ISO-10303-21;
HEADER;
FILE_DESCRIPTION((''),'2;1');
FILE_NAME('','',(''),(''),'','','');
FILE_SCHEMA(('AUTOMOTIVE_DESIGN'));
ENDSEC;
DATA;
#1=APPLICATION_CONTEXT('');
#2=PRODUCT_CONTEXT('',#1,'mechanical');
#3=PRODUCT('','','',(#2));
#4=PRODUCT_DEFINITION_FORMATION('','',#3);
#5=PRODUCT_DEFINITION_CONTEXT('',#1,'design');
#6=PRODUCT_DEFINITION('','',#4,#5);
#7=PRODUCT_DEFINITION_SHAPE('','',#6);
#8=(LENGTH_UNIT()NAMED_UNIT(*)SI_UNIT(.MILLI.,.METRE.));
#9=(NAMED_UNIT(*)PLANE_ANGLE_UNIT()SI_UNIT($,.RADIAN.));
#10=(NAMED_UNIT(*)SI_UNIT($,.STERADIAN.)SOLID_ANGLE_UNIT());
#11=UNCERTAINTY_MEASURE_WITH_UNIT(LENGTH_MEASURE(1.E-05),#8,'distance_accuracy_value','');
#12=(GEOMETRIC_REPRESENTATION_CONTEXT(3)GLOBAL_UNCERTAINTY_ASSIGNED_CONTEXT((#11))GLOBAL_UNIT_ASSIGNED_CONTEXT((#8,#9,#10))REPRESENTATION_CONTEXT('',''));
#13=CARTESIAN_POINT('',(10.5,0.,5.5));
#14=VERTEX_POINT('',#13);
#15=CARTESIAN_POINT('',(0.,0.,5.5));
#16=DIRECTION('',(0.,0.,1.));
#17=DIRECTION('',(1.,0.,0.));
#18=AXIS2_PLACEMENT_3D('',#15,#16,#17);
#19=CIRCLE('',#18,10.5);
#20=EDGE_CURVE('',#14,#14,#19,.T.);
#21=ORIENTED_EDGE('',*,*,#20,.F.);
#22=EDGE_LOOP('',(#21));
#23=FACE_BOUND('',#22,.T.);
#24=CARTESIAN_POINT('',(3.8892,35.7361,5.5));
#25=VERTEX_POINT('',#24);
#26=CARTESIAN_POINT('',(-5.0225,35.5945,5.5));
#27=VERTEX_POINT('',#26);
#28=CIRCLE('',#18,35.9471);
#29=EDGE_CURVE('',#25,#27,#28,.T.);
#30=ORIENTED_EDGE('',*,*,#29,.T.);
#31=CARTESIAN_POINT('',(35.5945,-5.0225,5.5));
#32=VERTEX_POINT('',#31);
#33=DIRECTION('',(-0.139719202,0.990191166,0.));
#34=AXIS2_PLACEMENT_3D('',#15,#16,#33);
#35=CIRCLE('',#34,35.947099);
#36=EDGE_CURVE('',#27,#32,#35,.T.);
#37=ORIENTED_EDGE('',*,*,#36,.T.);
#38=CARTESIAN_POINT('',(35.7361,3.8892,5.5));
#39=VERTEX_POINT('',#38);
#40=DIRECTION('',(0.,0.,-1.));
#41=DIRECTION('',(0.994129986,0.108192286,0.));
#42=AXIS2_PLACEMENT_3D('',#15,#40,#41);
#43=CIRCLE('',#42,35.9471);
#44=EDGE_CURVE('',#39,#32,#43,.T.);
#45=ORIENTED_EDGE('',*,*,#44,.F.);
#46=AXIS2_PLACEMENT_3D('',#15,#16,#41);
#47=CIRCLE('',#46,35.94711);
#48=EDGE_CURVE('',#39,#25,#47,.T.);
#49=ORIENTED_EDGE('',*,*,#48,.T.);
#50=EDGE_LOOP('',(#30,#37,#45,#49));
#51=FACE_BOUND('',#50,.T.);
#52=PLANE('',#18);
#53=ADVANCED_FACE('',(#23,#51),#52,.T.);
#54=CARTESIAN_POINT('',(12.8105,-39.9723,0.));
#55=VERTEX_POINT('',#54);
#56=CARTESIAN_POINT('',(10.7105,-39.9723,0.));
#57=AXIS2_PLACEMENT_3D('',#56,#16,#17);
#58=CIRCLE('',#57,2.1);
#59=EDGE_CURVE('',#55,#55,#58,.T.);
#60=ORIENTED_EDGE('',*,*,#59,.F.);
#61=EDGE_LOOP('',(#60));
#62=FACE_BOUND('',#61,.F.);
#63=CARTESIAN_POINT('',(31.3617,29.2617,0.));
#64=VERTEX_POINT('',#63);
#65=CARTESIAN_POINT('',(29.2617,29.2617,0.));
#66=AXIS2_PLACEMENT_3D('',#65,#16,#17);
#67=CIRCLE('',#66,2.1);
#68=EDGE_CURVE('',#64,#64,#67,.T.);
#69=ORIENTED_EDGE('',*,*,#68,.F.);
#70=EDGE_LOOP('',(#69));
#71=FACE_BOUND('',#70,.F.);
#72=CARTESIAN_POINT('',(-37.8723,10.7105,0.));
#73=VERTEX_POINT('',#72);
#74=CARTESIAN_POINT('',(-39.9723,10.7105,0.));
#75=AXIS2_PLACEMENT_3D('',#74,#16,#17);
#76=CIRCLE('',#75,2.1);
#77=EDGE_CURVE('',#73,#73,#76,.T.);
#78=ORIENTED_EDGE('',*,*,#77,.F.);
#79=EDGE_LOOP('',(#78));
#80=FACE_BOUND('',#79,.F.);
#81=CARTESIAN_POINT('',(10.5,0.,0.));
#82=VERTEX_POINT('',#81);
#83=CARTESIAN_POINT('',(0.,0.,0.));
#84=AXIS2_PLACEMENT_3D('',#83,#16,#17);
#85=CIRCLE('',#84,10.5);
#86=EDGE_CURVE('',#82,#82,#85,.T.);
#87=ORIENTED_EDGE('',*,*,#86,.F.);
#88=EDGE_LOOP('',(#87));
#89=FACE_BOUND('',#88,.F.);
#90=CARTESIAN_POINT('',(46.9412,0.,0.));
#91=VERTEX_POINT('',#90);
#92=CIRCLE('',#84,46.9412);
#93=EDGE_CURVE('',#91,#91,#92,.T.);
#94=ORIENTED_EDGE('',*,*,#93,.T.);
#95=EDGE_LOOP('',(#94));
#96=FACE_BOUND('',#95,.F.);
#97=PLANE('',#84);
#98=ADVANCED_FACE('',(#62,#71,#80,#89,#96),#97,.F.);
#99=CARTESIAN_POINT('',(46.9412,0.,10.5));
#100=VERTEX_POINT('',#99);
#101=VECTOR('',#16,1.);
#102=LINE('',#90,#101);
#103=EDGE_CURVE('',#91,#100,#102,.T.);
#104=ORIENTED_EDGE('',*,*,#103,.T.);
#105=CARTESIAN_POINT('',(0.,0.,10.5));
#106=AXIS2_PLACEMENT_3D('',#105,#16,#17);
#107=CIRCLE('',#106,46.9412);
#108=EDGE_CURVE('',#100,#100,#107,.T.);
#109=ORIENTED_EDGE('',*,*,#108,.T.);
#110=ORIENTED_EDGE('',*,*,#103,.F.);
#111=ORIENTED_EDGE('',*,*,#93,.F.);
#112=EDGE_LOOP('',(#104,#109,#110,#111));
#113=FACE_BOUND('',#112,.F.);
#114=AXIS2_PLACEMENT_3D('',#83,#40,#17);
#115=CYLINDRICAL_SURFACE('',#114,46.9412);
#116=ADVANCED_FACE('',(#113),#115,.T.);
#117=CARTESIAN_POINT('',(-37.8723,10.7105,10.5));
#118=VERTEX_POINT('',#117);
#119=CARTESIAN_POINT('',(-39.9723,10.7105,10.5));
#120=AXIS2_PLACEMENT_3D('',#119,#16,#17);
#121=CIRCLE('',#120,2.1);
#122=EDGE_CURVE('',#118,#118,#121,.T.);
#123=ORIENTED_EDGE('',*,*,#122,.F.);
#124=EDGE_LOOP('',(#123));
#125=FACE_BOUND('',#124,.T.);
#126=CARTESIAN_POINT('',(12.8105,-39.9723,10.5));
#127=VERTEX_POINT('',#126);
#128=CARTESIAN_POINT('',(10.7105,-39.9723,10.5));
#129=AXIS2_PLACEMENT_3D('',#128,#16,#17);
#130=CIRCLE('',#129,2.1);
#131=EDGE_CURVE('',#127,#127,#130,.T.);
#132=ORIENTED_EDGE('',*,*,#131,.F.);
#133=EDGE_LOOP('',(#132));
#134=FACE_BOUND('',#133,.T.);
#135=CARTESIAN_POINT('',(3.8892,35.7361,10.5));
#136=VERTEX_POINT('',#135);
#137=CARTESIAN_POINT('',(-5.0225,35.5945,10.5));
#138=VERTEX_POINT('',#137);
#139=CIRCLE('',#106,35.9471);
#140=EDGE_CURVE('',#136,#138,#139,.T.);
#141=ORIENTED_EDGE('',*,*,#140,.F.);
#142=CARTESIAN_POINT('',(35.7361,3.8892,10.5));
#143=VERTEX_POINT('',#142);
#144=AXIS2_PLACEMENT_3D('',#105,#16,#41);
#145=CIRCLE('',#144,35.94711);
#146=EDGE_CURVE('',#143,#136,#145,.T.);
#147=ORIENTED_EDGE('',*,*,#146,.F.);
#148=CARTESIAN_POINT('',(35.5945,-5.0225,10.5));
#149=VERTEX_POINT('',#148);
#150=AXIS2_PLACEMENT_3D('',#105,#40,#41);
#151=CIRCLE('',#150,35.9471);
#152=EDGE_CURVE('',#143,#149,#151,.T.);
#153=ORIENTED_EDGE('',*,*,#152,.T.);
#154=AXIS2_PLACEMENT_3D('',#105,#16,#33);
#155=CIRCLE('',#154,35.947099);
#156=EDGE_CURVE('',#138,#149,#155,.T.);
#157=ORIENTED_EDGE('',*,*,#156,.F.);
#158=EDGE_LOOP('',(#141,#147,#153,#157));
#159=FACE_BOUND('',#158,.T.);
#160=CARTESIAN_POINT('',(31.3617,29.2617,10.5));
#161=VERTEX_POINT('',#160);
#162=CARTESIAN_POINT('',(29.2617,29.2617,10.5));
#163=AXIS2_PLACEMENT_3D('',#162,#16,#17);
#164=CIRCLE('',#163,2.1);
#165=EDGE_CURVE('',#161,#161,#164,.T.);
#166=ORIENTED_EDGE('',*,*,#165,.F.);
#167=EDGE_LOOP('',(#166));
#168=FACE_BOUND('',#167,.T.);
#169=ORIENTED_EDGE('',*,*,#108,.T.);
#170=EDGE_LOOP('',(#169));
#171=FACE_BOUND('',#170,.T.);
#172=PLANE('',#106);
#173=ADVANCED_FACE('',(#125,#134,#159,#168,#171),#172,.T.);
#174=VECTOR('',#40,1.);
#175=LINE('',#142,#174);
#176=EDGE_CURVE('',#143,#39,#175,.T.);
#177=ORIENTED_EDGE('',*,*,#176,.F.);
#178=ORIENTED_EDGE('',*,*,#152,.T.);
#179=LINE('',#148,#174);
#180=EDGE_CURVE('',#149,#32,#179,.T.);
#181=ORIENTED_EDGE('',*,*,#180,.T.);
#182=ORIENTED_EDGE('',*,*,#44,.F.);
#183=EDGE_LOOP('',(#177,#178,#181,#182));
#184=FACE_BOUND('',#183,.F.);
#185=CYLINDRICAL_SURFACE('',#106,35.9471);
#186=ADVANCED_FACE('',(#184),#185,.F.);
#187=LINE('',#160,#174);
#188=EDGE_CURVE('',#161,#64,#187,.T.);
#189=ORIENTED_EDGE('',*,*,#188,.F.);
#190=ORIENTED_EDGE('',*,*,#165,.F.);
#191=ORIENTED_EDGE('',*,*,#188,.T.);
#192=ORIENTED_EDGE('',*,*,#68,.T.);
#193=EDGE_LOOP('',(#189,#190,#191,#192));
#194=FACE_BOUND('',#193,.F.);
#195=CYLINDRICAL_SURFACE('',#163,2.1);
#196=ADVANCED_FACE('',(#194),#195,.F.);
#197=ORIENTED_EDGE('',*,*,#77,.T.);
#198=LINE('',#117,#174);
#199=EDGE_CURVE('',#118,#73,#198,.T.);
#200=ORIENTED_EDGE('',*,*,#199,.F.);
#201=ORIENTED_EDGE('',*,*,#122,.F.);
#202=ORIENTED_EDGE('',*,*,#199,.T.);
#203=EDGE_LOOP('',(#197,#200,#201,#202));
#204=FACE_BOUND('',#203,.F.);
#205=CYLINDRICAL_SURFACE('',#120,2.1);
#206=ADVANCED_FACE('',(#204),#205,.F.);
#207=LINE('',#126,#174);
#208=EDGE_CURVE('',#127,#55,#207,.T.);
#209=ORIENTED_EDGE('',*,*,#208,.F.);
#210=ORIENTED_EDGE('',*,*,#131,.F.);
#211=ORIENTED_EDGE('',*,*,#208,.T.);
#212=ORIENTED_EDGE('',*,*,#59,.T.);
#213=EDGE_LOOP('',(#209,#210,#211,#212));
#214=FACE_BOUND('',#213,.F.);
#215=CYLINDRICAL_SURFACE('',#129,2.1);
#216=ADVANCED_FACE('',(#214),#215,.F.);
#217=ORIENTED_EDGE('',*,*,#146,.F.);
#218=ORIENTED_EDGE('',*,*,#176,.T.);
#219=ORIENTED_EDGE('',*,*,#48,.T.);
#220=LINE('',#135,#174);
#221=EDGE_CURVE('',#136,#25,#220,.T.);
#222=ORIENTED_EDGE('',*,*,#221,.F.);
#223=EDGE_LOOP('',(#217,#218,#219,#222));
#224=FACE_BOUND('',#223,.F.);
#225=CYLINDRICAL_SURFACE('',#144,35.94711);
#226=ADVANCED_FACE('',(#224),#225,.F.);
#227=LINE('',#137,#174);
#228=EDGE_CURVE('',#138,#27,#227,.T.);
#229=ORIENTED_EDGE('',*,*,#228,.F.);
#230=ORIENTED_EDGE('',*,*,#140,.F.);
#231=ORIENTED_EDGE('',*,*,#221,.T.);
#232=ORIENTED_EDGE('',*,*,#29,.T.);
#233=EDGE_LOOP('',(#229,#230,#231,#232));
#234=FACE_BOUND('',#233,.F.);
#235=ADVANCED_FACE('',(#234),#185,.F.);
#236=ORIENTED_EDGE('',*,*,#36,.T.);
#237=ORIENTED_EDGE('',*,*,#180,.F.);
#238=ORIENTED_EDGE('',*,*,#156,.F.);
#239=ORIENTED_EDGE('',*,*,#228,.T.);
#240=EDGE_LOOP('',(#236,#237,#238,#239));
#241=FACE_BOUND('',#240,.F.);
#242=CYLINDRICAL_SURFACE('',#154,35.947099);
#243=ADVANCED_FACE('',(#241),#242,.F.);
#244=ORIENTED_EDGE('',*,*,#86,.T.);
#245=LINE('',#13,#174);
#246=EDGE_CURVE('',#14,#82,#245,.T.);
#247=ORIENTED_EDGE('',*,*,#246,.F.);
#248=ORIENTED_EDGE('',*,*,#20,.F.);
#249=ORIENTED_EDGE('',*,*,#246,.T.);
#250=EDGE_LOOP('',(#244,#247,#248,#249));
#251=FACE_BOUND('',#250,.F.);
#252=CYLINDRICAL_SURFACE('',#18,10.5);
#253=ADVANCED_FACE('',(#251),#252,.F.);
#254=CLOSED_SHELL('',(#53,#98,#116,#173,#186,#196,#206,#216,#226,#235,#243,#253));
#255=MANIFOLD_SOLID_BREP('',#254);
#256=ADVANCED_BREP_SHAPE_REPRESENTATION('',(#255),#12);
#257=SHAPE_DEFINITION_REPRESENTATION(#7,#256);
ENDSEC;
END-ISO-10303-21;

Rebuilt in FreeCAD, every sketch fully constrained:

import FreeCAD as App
import Part
import Sketcher
Q = App.Units.Quantity

doc = App.newDocument("Part")
body = doc.addObject("PartDesign::Body", "Body")

sketch1 = body.newObject("Sketcher::SketchObject", "Sketch")
sketch1.AttachmentSupport = (doc.getObject("XY_Plane"), [""])
sketch1.MapMode = "FlatFace"
sketch1.addGeometry(Part.Circle(App.Vector(0, 0, 0), App.Vector(0, 0, 1), 47), False)
sketch1.addConstraint([
    Sketcher.Constraint("Coincident", 0, 3, -1, 1),
    Sketcher.Constraint("Diameter", 0, Q("93.8824 mm")),
])
pad1 = body.newObject("PartDesign::Pad", "Pad")
pad1.Profile = sketch1
pad1.Length = 10.5

sketch2 = body.newObject("Sketcher::SketchObject", "Sketch001")
sketch2.AttachmentSupport = (doc.getObject("XY_Plane"), [""])
sketch2.MapMode = "FlatFace"
sketch2.AttachmentOffset = App.Placement(App.Vector(0, 0, 10.5), App.Rotation())
sketch2.addGeometry(Part.Circle(App.Vector(0, 0, 0), App.Vector(0, 0, 1), 36), False)
sketch2.addConstraint([
    Sketcher.Constraint("Coincident", 0, 3, -1, 1),
    Sketcher.Constraint("Diameter", 0, Q("71.8942 mm")),
])
pocket1 = body.newObject("PartDesign::Pocket", "Pocket")
pocket1.Profile = sketch2
pocket1.Length = 5

sketch3 = body.newObject("Sketcher::SketchObject", "Sketch002")
sketch3.AttachmentSupport = (doc.getObject("XY_Plane"), [""])
sketch3.MapMode = "FlatFace"
sketch3.AttachmentOffset = App.Placement(App.Vector(0, 0, 10.5), App.Rotation())
sketch3.addGeometry([
    Part.Circle(App.Vector(29.3, 29.3, 0), App.Vector(0, 0, 1), 2.1),
    Part.Circle(App.Vector(-40, 10.7, 0), App.Vector(0, 0, 1), 2.1),
    Part.Circle(App.Vector(10.7, -40, 0), App.Vector(0, 0, 1), 2.1),
], False)
sketch3.addConstraint([
    Sketcher.Constraint("Equal", 0, 1),
    Sketcher.Constraint("Equal", 1, 2),
    Sketcher.Constraint("Diameter", 0, Q("4.2 mm")),
    Sketcher.Constraint("DistanceX", 1, 3, 0, 3, Q("69.234 mm")),
    Sketcher.Constraint("DistanceY", 2, 3, 0, 3, Q("69.234 mm")),
    Sketcher.Constraint("DistanceX", -1, 1, 0, 3, Q("29.2617 mm")),
    Sketcher.Constraint("DistanceY", -1, 1, 0, 3, Q("29.2617 mm")),
    Sketcher.Constraint("DistanceY", -1, 1, 1, 3, Q("10.7105 mm")),
    Sketcher.Constraint("DistanceX", -1, 1, 2, 3, Q("10.7105 mm")),
])
pocket2 = body.newObject("PartDesign::Pocket", "Pocket001")
pocket2.Profile = sketch3
pocket2.Length = 10.5

sketch4 = body.newObject("Sketcher::SketchObject", "Sketch003")
sketch4.AttachmentSupport = (doc.getObject("XY_Plane"), [""])
sketch4.MapMode = "FlatFace"
sketch4.AttachmentOffset = App.Placement(App.Vector(0, 0, 5.5), App.Rotation())
sketch4.addGeometry(Part.Circle(App.Vector(0, 0, 0), App.Vector(0, 0, 1), 10), False)
sketch4.addConstraint([
    Sketcher.Constraint("Coincident", 0, 3, -1, 1),
    Sketcher.Constraint("Diameter", 0, Q("21 mm")),
])
pocket3 = body.newObject("PartDesign::Pocket", "Pocket002")
pocket3.Profile = sketch4
pocket3.Length = 10.5

doc.recompute()
